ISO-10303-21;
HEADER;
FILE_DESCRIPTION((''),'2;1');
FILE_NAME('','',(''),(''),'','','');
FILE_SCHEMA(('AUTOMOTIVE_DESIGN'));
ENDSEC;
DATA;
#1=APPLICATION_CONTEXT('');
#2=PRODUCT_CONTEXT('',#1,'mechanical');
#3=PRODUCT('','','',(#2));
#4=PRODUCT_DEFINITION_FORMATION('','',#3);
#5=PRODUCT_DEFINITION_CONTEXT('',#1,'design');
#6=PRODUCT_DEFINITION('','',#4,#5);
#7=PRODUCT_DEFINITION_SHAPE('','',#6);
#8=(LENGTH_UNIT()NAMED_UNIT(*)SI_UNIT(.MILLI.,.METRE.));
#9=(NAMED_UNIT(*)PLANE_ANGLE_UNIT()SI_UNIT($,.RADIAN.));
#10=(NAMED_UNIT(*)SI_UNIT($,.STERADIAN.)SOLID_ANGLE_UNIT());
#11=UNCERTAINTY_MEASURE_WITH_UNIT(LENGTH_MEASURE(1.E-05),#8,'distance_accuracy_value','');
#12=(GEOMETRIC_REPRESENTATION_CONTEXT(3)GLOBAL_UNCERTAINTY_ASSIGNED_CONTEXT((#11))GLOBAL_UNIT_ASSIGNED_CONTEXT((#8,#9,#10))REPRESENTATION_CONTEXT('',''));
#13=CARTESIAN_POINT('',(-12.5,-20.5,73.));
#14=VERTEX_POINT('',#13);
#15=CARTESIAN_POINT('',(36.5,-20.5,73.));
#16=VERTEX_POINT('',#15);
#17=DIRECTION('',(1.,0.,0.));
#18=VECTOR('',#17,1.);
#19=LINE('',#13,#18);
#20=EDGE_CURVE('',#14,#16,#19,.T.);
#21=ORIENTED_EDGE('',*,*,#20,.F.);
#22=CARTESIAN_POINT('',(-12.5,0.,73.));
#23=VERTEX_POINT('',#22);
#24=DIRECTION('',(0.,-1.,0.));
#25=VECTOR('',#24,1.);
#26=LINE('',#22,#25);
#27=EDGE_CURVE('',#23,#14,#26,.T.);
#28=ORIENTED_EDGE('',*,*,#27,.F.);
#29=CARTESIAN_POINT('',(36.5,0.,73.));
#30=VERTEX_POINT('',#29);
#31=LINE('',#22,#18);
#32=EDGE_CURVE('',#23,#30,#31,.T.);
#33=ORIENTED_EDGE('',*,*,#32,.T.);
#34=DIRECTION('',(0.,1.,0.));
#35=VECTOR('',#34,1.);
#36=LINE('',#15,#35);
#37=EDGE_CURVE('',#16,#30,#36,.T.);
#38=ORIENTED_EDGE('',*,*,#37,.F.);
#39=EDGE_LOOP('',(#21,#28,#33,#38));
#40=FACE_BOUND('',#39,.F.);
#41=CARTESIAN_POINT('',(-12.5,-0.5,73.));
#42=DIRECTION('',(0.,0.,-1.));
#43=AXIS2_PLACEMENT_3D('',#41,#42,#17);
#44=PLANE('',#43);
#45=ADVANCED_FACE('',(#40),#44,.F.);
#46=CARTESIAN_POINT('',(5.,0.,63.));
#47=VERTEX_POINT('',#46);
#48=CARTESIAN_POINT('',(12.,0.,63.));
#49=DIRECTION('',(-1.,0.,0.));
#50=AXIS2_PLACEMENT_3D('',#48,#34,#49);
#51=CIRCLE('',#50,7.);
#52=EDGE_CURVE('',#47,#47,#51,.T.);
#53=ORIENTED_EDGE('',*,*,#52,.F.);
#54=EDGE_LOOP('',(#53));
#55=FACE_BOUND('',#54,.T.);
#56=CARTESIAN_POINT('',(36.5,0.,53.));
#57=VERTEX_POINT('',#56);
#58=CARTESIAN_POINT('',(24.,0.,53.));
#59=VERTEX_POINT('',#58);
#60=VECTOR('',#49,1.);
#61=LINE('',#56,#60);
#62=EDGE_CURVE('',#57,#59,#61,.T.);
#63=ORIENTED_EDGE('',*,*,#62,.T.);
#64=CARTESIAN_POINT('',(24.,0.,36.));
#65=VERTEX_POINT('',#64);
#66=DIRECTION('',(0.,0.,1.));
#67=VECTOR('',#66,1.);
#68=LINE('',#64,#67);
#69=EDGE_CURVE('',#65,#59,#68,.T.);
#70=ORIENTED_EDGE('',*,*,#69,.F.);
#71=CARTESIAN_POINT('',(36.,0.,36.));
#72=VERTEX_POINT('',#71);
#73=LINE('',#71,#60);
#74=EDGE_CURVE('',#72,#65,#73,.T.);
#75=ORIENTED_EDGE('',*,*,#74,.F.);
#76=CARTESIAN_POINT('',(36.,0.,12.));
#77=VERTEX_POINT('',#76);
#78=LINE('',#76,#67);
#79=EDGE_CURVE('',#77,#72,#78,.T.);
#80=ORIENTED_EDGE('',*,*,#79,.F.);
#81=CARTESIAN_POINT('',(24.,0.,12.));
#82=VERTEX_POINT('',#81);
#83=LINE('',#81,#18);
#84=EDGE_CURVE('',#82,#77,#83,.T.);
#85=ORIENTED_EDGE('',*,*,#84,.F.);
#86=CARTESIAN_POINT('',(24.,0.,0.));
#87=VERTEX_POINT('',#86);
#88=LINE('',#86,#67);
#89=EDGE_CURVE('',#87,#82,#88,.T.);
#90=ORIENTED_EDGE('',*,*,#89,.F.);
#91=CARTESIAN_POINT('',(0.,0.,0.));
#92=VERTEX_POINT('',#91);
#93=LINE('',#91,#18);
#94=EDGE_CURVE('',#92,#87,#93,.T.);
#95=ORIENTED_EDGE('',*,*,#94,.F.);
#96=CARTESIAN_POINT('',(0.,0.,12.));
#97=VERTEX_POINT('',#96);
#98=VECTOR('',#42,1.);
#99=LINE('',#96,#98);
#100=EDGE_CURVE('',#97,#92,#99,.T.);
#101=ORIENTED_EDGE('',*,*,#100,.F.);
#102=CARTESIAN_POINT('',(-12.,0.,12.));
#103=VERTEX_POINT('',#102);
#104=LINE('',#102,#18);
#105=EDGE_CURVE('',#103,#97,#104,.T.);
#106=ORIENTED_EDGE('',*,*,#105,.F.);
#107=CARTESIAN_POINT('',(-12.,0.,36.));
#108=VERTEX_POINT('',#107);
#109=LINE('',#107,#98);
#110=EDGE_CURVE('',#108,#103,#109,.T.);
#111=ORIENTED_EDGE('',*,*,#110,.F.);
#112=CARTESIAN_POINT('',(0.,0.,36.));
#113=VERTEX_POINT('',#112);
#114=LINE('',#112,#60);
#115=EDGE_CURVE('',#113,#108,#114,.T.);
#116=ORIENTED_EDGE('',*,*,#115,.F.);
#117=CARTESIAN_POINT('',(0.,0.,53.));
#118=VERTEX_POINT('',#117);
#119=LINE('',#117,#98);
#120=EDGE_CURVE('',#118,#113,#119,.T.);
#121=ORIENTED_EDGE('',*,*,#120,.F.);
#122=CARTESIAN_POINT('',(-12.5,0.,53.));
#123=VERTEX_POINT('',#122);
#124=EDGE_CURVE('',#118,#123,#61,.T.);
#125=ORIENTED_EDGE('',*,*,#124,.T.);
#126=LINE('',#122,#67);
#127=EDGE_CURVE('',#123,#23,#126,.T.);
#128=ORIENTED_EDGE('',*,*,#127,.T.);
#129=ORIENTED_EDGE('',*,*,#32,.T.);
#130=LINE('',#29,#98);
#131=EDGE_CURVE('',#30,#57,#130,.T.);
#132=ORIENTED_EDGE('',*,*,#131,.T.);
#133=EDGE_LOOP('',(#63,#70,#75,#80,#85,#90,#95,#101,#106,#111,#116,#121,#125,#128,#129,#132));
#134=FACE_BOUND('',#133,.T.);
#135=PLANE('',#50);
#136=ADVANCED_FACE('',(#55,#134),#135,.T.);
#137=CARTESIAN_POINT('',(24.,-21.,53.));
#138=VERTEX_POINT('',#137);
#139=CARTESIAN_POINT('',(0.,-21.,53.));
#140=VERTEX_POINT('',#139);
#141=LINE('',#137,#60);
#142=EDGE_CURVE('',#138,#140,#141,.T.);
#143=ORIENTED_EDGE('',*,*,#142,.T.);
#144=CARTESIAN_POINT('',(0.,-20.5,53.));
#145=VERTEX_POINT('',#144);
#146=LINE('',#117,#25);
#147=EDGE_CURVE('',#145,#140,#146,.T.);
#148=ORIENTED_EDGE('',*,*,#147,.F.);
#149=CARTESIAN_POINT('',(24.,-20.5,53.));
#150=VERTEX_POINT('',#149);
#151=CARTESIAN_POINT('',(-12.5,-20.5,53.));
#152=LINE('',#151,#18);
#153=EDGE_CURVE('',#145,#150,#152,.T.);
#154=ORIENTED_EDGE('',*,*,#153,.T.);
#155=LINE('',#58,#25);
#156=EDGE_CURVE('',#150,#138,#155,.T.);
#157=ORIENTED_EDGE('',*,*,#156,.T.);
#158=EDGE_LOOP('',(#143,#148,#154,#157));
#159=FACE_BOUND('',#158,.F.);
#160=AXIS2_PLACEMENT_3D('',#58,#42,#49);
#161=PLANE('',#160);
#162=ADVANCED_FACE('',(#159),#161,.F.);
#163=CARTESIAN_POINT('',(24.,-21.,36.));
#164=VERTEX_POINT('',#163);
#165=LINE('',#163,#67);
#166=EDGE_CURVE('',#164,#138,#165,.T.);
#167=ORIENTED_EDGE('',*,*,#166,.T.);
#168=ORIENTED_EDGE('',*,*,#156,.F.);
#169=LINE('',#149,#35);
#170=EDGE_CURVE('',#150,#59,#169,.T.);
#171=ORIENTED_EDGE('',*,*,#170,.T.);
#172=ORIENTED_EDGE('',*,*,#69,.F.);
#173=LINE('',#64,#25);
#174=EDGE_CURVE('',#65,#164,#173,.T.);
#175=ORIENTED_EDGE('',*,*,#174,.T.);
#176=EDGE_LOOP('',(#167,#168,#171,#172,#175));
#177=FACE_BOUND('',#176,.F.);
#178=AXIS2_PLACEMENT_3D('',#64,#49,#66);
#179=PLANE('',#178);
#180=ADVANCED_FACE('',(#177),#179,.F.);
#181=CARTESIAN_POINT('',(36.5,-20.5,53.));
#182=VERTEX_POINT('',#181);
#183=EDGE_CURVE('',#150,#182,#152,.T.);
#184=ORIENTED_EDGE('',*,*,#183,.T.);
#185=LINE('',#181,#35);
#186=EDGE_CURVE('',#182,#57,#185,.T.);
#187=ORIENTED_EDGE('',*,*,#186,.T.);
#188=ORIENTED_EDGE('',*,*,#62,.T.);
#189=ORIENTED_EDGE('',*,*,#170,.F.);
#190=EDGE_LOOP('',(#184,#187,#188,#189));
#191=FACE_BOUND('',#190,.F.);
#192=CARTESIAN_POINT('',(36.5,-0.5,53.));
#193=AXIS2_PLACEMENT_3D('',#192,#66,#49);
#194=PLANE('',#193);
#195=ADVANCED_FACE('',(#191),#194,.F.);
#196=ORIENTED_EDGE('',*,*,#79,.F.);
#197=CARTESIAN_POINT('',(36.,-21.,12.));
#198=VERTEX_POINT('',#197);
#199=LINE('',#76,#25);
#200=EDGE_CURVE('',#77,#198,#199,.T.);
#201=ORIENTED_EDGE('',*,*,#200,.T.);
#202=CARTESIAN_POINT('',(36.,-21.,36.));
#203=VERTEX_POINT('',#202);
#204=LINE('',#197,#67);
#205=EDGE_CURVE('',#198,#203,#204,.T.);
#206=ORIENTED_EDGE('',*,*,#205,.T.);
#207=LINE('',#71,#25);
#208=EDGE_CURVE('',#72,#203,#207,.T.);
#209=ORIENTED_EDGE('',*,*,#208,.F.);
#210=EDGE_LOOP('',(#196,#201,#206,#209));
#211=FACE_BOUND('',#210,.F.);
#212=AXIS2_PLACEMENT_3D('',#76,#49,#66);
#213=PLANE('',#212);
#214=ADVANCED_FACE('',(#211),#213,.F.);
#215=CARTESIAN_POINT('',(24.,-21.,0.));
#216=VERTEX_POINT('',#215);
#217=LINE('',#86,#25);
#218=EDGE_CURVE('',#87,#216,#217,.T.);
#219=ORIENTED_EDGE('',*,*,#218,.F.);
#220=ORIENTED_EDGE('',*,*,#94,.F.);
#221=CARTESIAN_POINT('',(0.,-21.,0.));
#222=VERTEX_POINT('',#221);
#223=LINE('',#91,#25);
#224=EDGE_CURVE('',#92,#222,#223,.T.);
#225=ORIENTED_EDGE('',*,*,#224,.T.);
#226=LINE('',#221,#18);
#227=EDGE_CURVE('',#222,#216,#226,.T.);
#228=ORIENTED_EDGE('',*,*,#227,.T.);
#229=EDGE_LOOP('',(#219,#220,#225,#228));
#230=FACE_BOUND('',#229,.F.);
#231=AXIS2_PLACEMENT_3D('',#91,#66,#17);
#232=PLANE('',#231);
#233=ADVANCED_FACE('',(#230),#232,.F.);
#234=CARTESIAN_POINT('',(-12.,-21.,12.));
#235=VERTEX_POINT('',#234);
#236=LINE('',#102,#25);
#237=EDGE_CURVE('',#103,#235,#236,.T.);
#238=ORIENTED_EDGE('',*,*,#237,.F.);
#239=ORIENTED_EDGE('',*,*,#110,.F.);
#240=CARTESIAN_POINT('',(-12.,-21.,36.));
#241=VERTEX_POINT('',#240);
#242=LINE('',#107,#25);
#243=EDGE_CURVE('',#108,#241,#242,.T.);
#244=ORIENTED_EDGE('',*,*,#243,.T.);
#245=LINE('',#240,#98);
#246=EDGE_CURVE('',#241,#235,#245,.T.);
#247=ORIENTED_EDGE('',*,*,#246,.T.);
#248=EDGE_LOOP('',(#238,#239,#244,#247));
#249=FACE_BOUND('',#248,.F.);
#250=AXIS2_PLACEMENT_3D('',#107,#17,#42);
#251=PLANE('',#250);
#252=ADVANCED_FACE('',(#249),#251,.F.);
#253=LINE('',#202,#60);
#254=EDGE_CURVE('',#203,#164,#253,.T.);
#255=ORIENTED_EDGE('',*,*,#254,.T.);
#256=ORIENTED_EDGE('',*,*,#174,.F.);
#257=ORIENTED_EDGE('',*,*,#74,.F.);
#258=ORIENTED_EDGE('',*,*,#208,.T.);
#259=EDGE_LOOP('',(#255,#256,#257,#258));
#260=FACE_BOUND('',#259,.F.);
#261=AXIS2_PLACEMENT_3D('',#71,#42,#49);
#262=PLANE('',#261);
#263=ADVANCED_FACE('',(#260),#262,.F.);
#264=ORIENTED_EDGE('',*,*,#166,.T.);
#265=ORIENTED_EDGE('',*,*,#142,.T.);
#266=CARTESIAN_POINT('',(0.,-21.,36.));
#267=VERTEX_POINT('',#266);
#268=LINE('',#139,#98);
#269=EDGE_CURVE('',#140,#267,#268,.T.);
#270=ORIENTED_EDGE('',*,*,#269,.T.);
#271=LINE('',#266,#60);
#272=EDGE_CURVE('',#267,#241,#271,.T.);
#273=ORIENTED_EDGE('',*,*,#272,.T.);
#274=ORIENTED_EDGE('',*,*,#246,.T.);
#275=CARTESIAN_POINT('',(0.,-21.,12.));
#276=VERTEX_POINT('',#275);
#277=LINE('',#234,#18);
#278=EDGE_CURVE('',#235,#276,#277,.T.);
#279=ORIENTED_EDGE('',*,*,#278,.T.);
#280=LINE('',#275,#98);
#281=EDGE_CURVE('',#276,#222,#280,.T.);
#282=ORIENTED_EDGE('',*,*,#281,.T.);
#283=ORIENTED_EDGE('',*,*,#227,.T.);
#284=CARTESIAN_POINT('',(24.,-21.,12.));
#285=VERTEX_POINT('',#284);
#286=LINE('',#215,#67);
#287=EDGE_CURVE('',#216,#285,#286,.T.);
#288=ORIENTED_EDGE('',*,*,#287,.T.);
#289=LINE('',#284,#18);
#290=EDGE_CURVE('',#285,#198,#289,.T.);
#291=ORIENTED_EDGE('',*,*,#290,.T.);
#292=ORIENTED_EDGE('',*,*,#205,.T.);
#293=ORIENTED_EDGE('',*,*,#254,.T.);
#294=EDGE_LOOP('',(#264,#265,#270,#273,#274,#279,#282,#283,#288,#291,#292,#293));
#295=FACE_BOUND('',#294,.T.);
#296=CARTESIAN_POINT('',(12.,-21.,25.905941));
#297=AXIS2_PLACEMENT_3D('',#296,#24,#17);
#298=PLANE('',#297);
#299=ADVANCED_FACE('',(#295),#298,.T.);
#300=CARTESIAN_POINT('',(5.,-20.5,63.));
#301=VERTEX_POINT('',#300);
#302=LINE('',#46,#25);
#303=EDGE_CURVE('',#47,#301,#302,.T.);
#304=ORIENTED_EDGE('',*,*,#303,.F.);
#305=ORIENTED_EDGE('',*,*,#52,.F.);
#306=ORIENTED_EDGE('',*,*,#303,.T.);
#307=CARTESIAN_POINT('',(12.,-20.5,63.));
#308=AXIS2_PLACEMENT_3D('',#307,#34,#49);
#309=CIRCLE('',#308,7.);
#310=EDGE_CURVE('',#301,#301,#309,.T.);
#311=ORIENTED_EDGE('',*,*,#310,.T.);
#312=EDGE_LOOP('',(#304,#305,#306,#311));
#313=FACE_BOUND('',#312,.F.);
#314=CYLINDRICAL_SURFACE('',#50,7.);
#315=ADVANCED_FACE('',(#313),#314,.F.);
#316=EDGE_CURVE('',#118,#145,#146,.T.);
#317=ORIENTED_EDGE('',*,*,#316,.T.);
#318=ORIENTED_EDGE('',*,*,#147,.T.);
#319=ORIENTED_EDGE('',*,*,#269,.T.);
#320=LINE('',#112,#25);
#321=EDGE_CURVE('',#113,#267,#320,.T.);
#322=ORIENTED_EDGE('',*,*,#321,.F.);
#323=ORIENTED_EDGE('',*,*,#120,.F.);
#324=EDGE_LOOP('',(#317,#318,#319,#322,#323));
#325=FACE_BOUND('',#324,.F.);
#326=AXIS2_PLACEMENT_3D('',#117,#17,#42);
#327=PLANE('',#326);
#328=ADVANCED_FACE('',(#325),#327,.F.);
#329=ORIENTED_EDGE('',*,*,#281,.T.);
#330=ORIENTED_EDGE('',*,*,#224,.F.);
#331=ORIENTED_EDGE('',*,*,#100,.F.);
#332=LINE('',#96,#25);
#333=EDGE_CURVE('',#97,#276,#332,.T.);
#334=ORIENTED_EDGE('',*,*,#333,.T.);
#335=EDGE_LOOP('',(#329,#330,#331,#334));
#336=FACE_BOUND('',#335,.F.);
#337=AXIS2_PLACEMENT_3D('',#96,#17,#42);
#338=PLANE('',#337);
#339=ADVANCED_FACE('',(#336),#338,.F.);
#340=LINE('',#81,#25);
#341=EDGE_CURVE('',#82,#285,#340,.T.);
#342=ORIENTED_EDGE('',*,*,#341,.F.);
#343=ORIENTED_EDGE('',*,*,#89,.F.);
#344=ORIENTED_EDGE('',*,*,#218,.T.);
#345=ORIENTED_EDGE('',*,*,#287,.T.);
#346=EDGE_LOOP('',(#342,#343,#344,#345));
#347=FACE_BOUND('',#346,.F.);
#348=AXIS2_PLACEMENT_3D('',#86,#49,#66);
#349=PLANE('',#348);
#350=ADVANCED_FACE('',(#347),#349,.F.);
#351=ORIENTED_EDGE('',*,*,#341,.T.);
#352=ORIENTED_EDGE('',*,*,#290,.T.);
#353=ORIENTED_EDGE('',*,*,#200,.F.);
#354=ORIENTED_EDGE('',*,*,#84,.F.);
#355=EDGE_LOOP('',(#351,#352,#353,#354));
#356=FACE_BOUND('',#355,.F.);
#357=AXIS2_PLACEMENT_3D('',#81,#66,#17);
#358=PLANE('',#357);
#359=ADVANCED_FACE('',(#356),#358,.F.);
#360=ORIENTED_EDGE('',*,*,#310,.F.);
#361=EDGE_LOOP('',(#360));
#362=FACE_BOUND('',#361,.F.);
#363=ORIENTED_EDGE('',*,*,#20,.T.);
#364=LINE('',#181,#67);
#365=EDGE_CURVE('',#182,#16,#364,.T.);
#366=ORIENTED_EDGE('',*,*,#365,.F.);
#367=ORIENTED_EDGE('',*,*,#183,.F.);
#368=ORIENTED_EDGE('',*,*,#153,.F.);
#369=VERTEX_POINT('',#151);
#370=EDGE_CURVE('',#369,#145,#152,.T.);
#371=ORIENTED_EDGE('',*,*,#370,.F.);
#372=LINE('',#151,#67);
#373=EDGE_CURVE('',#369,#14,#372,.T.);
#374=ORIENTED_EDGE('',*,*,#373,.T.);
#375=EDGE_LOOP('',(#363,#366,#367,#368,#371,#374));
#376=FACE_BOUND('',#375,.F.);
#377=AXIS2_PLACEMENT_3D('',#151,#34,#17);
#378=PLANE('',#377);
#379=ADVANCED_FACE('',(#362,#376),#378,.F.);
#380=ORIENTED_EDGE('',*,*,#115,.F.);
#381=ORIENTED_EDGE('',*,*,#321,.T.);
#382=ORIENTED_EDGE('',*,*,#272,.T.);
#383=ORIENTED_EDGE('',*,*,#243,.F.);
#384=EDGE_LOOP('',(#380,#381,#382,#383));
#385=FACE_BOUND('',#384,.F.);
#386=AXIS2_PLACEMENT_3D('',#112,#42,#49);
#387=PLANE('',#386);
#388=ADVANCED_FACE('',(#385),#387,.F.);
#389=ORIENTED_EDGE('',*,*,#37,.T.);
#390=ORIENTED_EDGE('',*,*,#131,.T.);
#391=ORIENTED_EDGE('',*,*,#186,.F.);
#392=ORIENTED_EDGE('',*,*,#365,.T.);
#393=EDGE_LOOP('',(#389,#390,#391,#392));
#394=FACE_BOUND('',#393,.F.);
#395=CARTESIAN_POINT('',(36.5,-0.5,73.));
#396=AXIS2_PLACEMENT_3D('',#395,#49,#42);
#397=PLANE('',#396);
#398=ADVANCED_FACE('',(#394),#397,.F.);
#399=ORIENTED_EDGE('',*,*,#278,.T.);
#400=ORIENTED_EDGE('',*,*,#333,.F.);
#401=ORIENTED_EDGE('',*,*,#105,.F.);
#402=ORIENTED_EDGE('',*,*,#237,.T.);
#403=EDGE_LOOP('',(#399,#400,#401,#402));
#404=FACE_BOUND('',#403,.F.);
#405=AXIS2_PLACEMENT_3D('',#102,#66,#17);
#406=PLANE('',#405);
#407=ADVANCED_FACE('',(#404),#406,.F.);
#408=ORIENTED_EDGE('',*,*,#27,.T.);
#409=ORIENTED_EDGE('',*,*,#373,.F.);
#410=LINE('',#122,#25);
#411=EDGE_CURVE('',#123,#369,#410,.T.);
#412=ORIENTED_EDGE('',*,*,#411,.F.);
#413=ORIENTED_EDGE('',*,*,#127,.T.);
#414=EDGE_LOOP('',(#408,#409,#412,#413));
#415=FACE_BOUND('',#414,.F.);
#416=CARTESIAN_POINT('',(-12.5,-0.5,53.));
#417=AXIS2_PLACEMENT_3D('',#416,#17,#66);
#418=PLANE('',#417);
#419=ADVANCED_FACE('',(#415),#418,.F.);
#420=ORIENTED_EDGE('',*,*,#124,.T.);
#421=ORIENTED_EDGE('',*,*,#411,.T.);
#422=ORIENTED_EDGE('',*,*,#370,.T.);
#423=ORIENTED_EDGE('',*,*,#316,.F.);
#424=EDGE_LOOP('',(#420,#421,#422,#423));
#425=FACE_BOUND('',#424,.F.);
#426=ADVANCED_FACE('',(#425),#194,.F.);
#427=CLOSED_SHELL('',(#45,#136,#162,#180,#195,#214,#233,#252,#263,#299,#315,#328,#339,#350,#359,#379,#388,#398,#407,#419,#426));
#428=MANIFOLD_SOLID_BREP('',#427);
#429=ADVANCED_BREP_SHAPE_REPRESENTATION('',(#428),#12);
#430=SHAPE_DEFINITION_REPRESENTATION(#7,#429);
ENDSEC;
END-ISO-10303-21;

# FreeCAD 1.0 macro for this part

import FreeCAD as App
import Part
import Sketcher
from FreeCAD import Vector

doc = App.newDocument("Part")
body = doc.addObject("PartDesign::Body", "Body")

sketch1 = body.newObject("Sketcher::SketchObject", "Sketch")
sketch1.AttachmentSupport = (doc.getObject("XZ_Plane"), [""])
sketch1.MapMode = "FlatFace"
sketch1.addGeometry(Part.LineSegment(Vector(0, 12, 0), Vector(0, 0, 0)), False)
sketch1.addGeometry(Part.LineSegment(Vector(0, 0, 0), Vector(24, 0, 0)), False)
sketch1.addGeometry(Part.LineSegment(Vector(24, 0, 0), Vector(24, 12, 0)), False)
sketch1.addGeometry(Part.LineSegment(Vector(24, 12, 0), Vector(36, 12, 0)), False)
sketch1.addGeometry(Part.LineSegment(Vector(36, 12, 0), Vector(36, 36, 0)), False)
sketch1.addGeometry(Part.LineSegment(Vector(36, 36, 0), Vector(24, 36, 0)), False)
sketch1.addGeometry(Part.LineSegment(Vector(24, 36, 0), Vector(24, 53, 0)), False)
sketch1.addGeometry(Part.LineSegment(Vector(24, 53, 0), Vector(0, 53, 0)), False)
sketch1.addGeometry(Part.LineSegment(Vector(0, 53, 0), Vector(0, 36, 0)), False)
sketch1.addGeometry(Part.LineSegment(Vector(0, 36, 0), Vector(-12, 36, 0)), False)
sketch1.addGeometry(Part.LineSegment(Vector(-12, 36, 0), Vector(-12, 12, 0)), False)
sketch1.addGeometry(Part.LineSegment(Vector(-12, 12, 0), Vector(0, 12, 0)), False)
sketch1.addConstraint(Sketcher.Constraint("Coincident", 0, 2, 1, 1))
sketch1.addConstraint(Sketcher.Constraint("Coincident", 1, 2, 2, 1))
sketch1.addConstraint(Sketcher.Constraint("Coincident", 2, 2, 3, 1))
sketch1.addConstraint(Sketcher.Constraint("Coincident", 3, 2, 4, 1))
sketch1.addConstraint(Sketcher.Constraint("Coincident", 4, 2, 5, 1))
sketch1.addConstraint(Sketcher.Constraint("Coincident", 5, 2, 6, 1))
sketch1.addConstraint(Sketcher.Constraint("Coincident", 6, 2, 7, 1))
sketch1.addConstraint(Sketcher.Constraint("Coincident", 7, 2, 8, 1))
sketch1.addConstraint(Sketcher.Constraint("Coincident", 8, 2, 9, 1))
sketch1.addConstraint(Sketcher.Constraint("Coincident", 9, 2, 10, 1))
sketch1.addConstraint(Sketcher.Constraint("Coincident", 10, 2, 11, 1))
sketch1.addConstraint(Sketcher.Constraint("Coincident", 11, 2, 0, 1))
sketch1.addConstraint(Sketcher.Constraint("Vertical", 0))
sketch1.addConstraint(Sketcher.Constraint("Horizontal", 1))
sketch1.addConstraint(Sketcher.Constraint("Vertical", 2))
sketch1.addConstraint(Sketcher.Constraint("Horizontal", 3))
sketch1.addConstraint(Sketcher.Constraint("Vertical", 4))
sketch1.addConstraint(Sketcher.Constraint("Horizontal", 5))
sketch1.addConstraint(Sketcher.Constraint("Vertical", 6))
sketch1.addConstraint(Sketcher.Constraint("Horizontal", 7))
sketch1.addConstraint(Sketcher.Constraint("Vertical", 8))
sketch1.addConstraint(Sketcher.Constraint("Horizontal", 9))
sketch1.addConstraint(Sketcher.Constraint("Vertical", 10))
sketch1.addConstraint(Sketcher.Constraint("Horizontal", 11))
sketch1.addConstraint(Sketcher.Constraint("Coincident", 0, 2, -1, 1))
sketch1.addConstraint(Sketcher.Constraint("PointOnObject", 7, 2, -2))
sketch1.addConstraint(Sketcher.Constraint("Horizontal", 5, 2, 8, 2))
sketch1.addConstraint(Sketcher.Constraint("Horizontal", 3, 2, 10, 2))
sketch1.addConstraint(Sketcher.Constraint("Vertical", 2, 2, 5, 2))
sketch1.addConstraint(Sketcher.Constraint("Equal", 5, 9))
sketch1.addConstraint(Sketcher.Constraint("Equal", 11, 0))
sketch1.addConstraint(Sketcher.Constraint("Equal", 7, 4))
sketch1.addConstraint(Sketcher.Constraint("DistanceX", 1, 1, 1, 2, 24.0))
sketch1.addConstraint(Sketcher.Constraint("DistanceX", 3, 1, 3, 2, 12.0))
sketch1.addConstraint(Sketcher.Constraint("DistanceY", 6, 1, 6, 2, 17.0))
pad1 = body.newObject("PartDesign::Pad", "Pad")
pad1.Profile = sketch1
pad1.Length = 21

sketch2 = body.newObject("Sketcher::SketchObject", "Sketch001")
sketch2.AttachmentSupport = (doc.getObject("XY_Plane"), [""])
sketch2.MapMode = "FlatFace"
sketch2.AttachmentOffset = App.Placement(Vector(0, 0, 53), App.Rotation())
sketch2.addGeometry(Part.LineSegment(Vector(36, -20, 0), Vector(36, 0, 0)), False)
sketch2.addGeometry(Part.LineSegment(Vector(36, 0, 0), Vector(-12, 0, 0)), False)
sketch2.addGeometry(Part.LineSegment(Vector(-12, 0, 0), Vector(-12, -20, 0)), False)
sketch2.addGeometry(Part.LineSegment(Vector(-12, -20, 0), Vector(36, -20, 0)), False)
sketch2.addConstraint(Sketcher.Constraint("Coincident", 0, 2, 1, 1))
sketch2.addConstraint(Sketcher.Constraint("Coincident", 1, 2, 2, 1))
sketch2.addConstraint(Sketcher.Constraint("Coincident", 2, 2, 3, 1))
sketch2.addConstraint(Sketcher.Constraint("Coincident", 3, 2, 0, 1))
sketch2.addConstraint(Sketcher.Constraint("Vertical", 0))
sketch2.addConstraint(Sketcher.Constraint("Horizontal", 1))
sketch2.addConstraint(Sketcher.Constraint("Vertical", 2))
sketch2.addConstraint(Sketcher.Constraint("Horizontal", 3))
sketch2.addConstraint(Sketcher.Constraint("DistanceX", 1, 2, 1, 1, 49.0))
sketch2.addConstraint(Sketcher.Constraint("DistanceY", 0, 1, 0, 2, 20.0))
sketch2.addConstraint(Sketcher.Constraint("DistanceX", -1, 1, 0, 2, 36.5))
sketch2.addConstraint(Sketcher.Constraint("DistanceY", 0, 2, -1, 1, 0.5))
pad2 = body.newObject("PartDesign::Pad", "Pad001")
pad2.Profile = sketch2
pad2.Length = 20

sketch3 = body.newObject("Sketcher::SketchObject", "Sketch002")
sketch3.AttachmentSupport = (doc.getObject("XZ_Plane"), [""])
sketch3.MapMode = "FlatFace"
sketch3.AttachmentOffset = App.Placement(Vector(0, 0, 0.5), App.Rotation())
sketch3.addGeometry(Part.LineSegment(Vector(-12, 73, 0), Vector(36, 73, 0)), False)
sketch3.addGeometry(Part.LineSegment(Vector(36, 73, 0), Vector(36, 53, 0)), False)
sketch3.addGeometry(Part.LineSegment(Vector(36, 53, 0), Vector(-12, 53, 0)), False)
sketch3.addGeometry(Part.LineSegment(Vector(-12, 53, 0), Vector(-12, 73, 0)), False)
sketch3.addConstraint(Sketcher.Constraint("Coincident", 0, 2, 1, 1))
sketch3.addConstraint(Sketcher.Constraint("Coincident", 1, 2, 2, 1))
sketch3.addConstraint(Sketcher.Constraint("Coincident", 2, 2, 3, 1))
sketch3.addConstraint(Sketcher.Constraint("Coincident", 3, 2, 0, 1))
sketch3.addConstraint(Sketcher.Constraint("Horizontal", 0))
sketch3.addConstraint(Sketcher.Constraint("Vertical", 1))
sketch3.addConstraint(Sketcher.Constraint("Horizontal", 2))
sketch3.addConstraint(Sketcher.Constraint("Vertical", 3))
sketch3.addConstraint(Sketcher.Constraint("DistanceX", 0, 1, 0, 2, 49.0))
sketch3.addConstraint(Sketcher.Constraint("DistanceY", 1, 2, 1, 1, 20.0))
sketch3.addConstraint(Sketcher.Constraint("DistanceY", -1, 1, 0, 2, 73.0))
sketch3.addConstraint(Sketcher.Constraint("DistanceX", -1, 1, 0, 2, 36.5))
pad3 = body.newObject("PartDesign::Pad", "Pad002")
pad3.Profile = sketch3
pad3.Length = 0.5
pad3.Reversed = True

sketch4 = body.newObject("Sketcher::SketchObject", "Sketch003")
sketch4.AttachmentSupport = (doc.getObject("XZ_Plane"), [""])
sketch4.MapMode = "FlatFace"
sketch4.addGeometry(Part.Circle(Vector(12, 63, 0), Vector(0, 0, 1), 7), False)
sketch4.addConstraint(Sketcher.Constraint("Diameter", 0, 14.0))
sketch4.addConstraint(Sketcher.Constraint("DistanceX", -1, 1, 0, 3, 12.0))
sketch4.addConstraint(Sketcher.Constraint("DistanceY", -1, 1, 0, 3, 63.0))
pocket1 = body.newObject("PartDesign::Pocket", "Pocket")
pocket1.Profile = sketch4
pocket1.Length = 25
pocket1.Reversed = True

doc.recompute()
